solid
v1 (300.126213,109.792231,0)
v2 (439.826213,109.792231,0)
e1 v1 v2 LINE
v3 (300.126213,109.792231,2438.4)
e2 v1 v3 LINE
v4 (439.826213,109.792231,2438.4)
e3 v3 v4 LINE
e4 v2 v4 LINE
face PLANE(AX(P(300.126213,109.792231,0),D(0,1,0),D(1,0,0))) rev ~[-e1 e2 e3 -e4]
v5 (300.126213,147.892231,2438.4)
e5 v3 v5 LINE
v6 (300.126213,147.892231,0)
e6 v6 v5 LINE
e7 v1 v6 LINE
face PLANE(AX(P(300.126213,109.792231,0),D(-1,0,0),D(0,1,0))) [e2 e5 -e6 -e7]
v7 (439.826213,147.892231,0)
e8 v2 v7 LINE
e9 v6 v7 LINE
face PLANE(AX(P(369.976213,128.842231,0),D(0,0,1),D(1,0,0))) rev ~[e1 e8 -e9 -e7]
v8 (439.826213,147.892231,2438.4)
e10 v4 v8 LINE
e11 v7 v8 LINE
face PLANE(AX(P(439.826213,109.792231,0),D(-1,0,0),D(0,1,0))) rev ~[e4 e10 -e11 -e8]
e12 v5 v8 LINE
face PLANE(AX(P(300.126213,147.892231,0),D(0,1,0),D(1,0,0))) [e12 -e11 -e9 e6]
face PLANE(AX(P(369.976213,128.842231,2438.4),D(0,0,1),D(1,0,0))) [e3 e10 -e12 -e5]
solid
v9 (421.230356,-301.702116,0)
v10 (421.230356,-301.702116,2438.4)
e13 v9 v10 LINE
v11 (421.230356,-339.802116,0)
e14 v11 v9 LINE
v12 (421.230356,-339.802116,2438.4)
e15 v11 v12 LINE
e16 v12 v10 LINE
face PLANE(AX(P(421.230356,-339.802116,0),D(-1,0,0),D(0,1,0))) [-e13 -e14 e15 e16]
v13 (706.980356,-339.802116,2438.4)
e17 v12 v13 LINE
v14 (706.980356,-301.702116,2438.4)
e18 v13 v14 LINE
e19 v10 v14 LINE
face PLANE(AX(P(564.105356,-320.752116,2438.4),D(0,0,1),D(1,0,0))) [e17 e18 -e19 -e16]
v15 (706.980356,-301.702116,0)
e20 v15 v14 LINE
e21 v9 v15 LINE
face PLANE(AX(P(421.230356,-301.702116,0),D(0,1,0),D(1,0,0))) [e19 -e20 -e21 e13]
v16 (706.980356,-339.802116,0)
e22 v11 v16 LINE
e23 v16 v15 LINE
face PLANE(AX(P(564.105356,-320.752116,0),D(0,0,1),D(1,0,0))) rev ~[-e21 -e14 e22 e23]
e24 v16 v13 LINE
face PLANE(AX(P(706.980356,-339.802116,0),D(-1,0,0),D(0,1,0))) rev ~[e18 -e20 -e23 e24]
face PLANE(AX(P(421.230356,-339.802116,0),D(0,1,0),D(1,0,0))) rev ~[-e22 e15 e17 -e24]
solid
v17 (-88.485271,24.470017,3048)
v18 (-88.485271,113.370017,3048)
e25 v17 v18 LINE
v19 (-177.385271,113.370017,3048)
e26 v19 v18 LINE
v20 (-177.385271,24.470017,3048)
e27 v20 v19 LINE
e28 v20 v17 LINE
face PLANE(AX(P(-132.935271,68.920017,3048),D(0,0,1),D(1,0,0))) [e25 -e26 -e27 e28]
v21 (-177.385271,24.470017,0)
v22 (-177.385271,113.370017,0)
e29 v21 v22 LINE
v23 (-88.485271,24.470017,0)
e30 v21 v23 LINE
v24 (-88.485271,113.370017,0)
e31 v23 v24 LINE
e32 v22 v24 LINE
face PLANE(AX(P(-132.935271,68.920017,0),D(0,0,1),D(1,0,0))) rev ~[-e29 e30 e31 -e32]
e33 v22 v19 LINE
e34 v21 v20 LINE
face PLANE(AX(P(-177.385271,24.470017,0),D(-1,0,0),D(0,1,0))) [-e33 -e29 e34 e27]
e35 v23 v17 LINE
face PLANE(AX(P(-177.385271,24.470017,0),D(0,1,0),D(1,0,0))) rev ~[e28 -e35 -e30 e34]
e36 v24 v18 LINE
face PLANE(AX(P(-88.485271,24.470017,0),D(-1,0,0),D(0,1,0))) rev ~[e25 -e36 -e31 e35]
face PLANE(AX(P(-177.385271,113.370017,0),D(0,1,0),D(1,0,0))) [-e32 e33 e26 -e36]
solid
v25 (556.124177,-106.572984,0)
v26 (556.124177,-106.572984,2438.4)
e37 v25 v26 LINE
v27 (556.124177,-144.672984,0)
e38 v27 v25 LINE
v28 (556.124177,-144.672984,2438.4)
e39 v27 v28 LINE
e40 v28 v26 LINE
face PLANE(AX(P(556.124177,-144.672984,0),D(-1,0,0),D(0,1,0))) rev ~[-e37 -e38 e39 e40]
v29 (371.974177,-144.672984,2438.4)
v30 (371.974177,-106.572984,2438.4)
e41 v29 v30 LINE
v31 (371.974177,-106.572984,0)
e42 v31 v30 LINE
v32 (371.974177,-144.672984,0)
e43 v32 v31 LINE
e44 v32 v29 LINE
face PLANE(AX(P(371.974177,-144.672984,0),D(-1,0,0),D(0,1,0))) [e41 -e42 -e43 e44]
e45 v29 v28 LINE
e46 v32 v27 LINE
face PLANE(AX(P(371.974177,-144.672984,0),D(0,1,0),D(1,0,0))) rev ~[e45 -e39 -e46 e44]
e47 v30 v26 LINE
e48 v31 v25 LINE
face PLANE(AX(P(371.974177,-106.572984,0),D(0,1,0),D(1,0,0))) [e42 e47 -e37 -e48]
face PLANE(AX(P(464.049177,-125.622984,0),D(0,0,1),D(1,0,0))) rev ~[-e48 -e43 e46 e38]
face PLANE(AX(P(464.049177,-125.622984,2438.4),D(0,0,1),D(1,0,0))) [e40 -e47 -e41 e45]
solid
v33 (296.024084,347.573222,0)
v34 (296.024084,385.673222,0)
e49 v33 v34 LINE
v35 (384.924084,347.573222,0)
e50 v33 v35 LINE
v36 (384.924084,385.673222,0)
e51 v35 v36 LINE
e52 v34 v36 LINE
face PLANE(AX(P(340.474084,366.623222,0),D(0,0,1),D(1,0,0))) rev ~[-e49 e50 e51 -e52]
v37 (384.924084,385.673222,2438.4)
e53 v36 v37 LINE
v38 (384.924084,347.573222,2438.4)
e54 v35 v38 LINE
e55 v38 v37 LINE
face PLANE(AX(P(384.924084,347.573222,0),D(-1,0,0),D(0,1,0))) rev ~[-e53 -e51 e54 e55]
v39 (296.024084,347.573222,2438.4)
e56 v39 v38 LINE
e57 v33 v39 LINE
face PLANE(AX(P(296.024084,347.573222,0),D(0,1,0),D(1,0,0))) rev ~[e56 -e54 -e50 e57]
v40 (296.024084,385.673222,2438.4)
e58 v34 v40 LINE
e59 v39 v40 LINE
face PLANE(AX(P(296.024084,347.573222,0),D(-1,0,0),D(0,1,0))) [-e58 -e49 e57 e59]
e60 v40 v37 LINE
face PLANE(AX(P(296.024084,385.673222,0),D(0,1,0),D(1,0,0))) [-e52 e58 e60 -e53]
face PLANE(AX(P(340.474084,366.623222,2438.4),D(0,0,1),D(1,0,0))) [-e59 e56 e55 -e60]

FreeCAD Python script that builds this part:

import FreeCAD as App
import Part
import Sketcher
Q = App.Units.Quantity

doc = App.newDocument("Part")
body = doc.addObject("PartDesign::Body", "Body")

# Sketch on XY plane
sketch1 = body.newObject("Sketcher::SketchObject", "Sketch")
sketch1.AttachmentSupport = (doc.getObject("XY_Plane"), [""])
sketch1.MapMode = "FlatFace"
sketch1.addGeometry(Part.LineSegment(App.Vector(-177, 113, 0), App.Vector(-177, 24, 0)), False)
sketch1.addGeometry(Part.LineSegment(App.Vector(-177, 24, 0), App.Vector(-88, 24, 0)), False)
sketch1.addGeometry(Part.LineSegment(App.Vector(-88, 24, 0), App.Vector(-88, 113, 0)), False)
sketch1.addGeometry(Part.LineSegment(App.Vector(-88, 113, 0), App.Vector(-177, 113, 0)), False)
sketch1.addConstraint(Sketcher.Constraint("Coincident", 0, 2, 1, 1))
sketch1.addConstraint(Sketcher.Constraint("Coincident", 1, 2, 2, 1))
sketch1.addConstraint(Sketcher.Constraint("Coincident", 2, 2, 3, 1))
sketch1.addConstraint(Sketcher.Constraint("Coincident", 3, 2, 0, 1))
sketch1.addConstraint(Sketcher.Constraint("Vertical", 0))
sketch1.addConstraint(Sketcher.Constraint("Horizontal", 1))
sketch1.addConstraint(Sketcher.Constraint("Vertical", 2))
sketch1.addConstraint(Sketcher.Constraint("Horizontal", 3))
sketch1.addConstraint(Sketcher.Constraint("Equal", 3, 0))
sketch1.addConstraint(Sketcher.Constraint("DistanceX", 1, 1, 1, 2, Q("3.5 in")))
sketch1.addConstraint(Sketcher.Constraint("DistanceX", 0, 2, -1, 1, Q("177.385271 mm")))
sketch1.addConstraint(Sketcher.Constraint("DistanceY", -1, 1, 0, 2, Q("24.470017 mm")))
pad1 = body.newObject("PartDesign::Pad", "Pad")
pad1.Profile = sketch1
pad1.Length = Q("120 in")
body2 = doc.addObject("PartDesign::Body", "Body001")

# Sketch on XY plane
sketch2 = body2.newObject("Sketcher::SketchObject", "Sketch001")
sketch2.AttachmentSupport = (doc.getObject("XY_Plane001"), [""])
sketch2.MapMode = "FlatFace"
sketch2.addGeometry(Part.LineSegment(App.Vector(296, 386, 0), App.Vector(296, 348, 0)), False)
sketch2.addGeometry(Part.LineSegment(App.Vector(296, 348, 0), App.Vector(385, 348, 0)), False)
sketch2.addGeometry(Part.LineSegment(App.Vector(385, 348, 0), App.Vector(385, 386, 0)), False)
sketch2.addGeometry(Part.LineSegment(App.Vector(385, 386, 0), App.Vector(296, 386, 0)), False)
sketch2.addConstraint(Sketcher.Constraint("Coincident", 0, 2, 1, 1))
sketch2.addConstraint(Sketcher.Constraint("Coincident", 1, 2, 2, 1))
sketch2.addConstraint(Sketcher.Constraint("Coincident", 2, 2, 3, 1))
sketch2.addConstraint(Sketcher.Constraint("Coincident", 3, 2, 0, 1))
sketch2.addConstraint(Sketcher.Constraint("Vertical", 0))
sketch2.addConstraint(Sketcher.Constraint("Horizontal", 1))
sketch2.addConstraint(Sketcher.Constraint("Vertical", 2))
sketch2.addConstraint(Sketcher.Constraint("Horizontal", 3))
sketch2.addConstraint(Sketcher.Constraint("DistanceX", 1, 1, 1, 2, Q("3.5 in")))
sketch2.addConstraint(Sketcher.Constraint("DistanceY", 0, 2, 0, 1, Q("1.5 in")))
sketch2.addConstraint(Sketcher.Constraint("DistanceY", -1, 1, 0, 2, Q("347.573222 mm")))
sketch2.addConstraint(Sketcher.Constraint("DistanceX", -1, 1, 0, 2, Q("296.024084 mm")))
pad2 = body2.newObject("PartDesign::Pad", "Pad001")
pad2.Profile = sketch2
pad2.Length = Q("96 in")
body3 = doc.addObject("PartDesign::Body", "Body002")

# Sketch on XY plane
sketch3 = body3.newObject("Sketcher::SketchObject", "Sketch002")
sketch3.AttachmentSupport = (doc.getObject("XY_Plane002"), [""])
sketch3.MapMode = "FlatFace"
sketch3.addGeometry(Part.LineSegment(App.Vector(300, 148, 0), App.Vector(300, 110, 0)), False)
sketch3.addGeometry(Part.LineSegment(App.Vector(300, 110, 0), App.Vector(440, 110, 0)), False)
sketch3.addGeometry(Part.LineSegment(App.Vector(440, 110, 0), App.Vector(440, 148, 0)), False)
sketch3.addGeometry(Part.LineSegment(App.Vector(440, 148, 0), App.Vector(300, 148, 0)), False)
sketch3.addConstraint(Sketcher.Constraint("Coincident", 0, 2, 1, 1))
sketch3.addConstraint(Sketcher.Constraint("Coincident", 1, 2, 2, 1))
sketch3.addConstraint(Sketcher.Constraint("Coincident", 2, 2, 3, 1))
sketch3.addConstraint(Sketcher.Constraint("Coincident", 3, 2, 0, 1))
sketch3.addConstraint(Sketcher.Constraint("Vertical", 0))
sketch3.addConstraint(Sketcher.Constraint("Horizontal", 1))
sketch3.addConstraint(Sketcher.Constraint("Vertical", 2))
sketch3.addConstraint(Sketcher.Constraint("Horizontal", 3))
sketch3.addConstraint(Sketcher.Constraint("DistanceX", 1, 1, 1, 2, Q("5.5 in")))
sketch3.addConstraint(Sketcher.Constraint("DistanceY", 0, 2, 0, 1, Q("1.5 in")))
sketch3.addConstraint(Sketcher.Constraint("DistanceY", -1, 1, 0, 2, Q("109.792231 mm")))
sketch3.addConstraint(Sketcher.Constraint("DistanceX", -1, 1, 0, 2, Q("300.126213 mm")))
pad3 = body3.newObject("PartDesign::Pad", "Pad002")
pad3.Profile = sketch3
pad3.Length = Q("96 in")
body4 = doc.addObject("PartDesign::Body", "Body003")

# Sketch on XY plane
sketch4 = body4.newObject("Sketcher::SketchObject", "Sketch003")
sketch4.AttachmentSupport = (doc.getObject("XY_Plane003"), [""])
sketch4.MapMode = "FlatFace"
sketch4.addGeometry(Part.LineSegment(App.Vector(372, -107, 0), App.Vector(372, -145, 0)), False)
sketch4.addGeometry(Part.LineSegment(App.Vector(372, -145, 0), App.Vector(556, -145, 0)), False)
sketch4.addGeometry(Part.LineSegment(App.Vector(556, -145, 0), App.Vector(556, -107, 0)), False)
sketch4.addGeometry(Part.LineSegment(App.Vector(556, -107, 0), App.Vector(372, -107, 0)), False)
sketch4.addConstraint(Sketcher.Constraint("Coincident", 0, 2, 1, 1))
sketch4.addConstraint(Sketcher.Constraint("Coincident", 1, 2, 2, 1))
sketch4.addConstraint(Sketcher.Constraint("Coincident", 2, 2, 3, 1))
sketch4.addConstraint(Sketcher.Constraint("Coincident", 3, 2, 0, 1))
sketch4.addConstraint(Sketcher.Constraint("Vertical", 0))
sketch4.addConstraint(Sketcher.Constraint("Horizontal", 1))
sketch4.addConstraint(Sketcher.Constraint("Vertical", 2))
sketch4.addConstraint(Sketcher.Constraint("Horizontal", 3))
sketch4.addConstraint(Sketcher.Constraint("DistanceY", 0, 2, 0, 1, Q("1.5 in")))
sketch4.addConstraint(Sketcher.Constraint("DistanceX", 1, 1, 1, 2, Q("7.25 in")))
sketch4.addConstraint(Sketcher.Constraint("DistanceX", -1, 1, 0, 2, Q("371.974177 mm")))
sketch4.addConstraint(Sketcher.Constraint("DistanceY", 0, 2, -1, 1, Q("144.672984 mm")))
pad4 = body4.newObject("PartDesign::Pad", "Pad003")
pad4.Profile = sketch4
pad4.Length = Q("96 in")
body5 = doc.addObject("PartDesign::Body", "Body004")

# Sketch on XY plane
sketch5 = body5.newObject("Sketcher::SketchObject", "Sketch004")
sketch5.AttachmentSupport = (doc.getObject("XY_Plane004"), [""])
sketch5.MapMode = "FlatFace"
sketch5.addGeometry(Part.LineSegment(App.Vector(421, -302, 0), App.Vector(421, -340, 0)), False)
sketch5.addGeometry(Part.LineSegment(App.Vector(421, -340, 0), App.Vector(707, -340, 0)), False)
sketch5.addGeometry(Part.LineSegment(App.Vector(707, -340, 0), App.Vector(707, -302, 0)), False)
sketch5.addGeometry(Part.LineSegment(App.Vector(707, -302, 0), App.Vector(421, -302, 0)), False)
sketch5.addConstraint(Sketcher.Constraint("Coincident", 0, 2, 1, 1))
sketch5.addConstraint(Sketcher.Constraint("Coincident", 1, 2, 2, 1))
sketch5.addConstraint(Sketcher.Constraint("Coincident", 2, 2, 3, 1))
sketch5.addConstraint(Sketcher.Constraint("Coincident", 3, 2, 0, 1))
sketch5.addConstraint(Sketcher.Constraint("Vertical", 0))
sketch5.addConstraint(Sketcher.Constraint("Horizontal", 1))
sketch5.addConstraint(Sketcher.Constraint("Vertical", 2))
sketch5.addConstraint(Sketcher.Constraint("Horizontal", 3))
sketch5.addConstraint(Sketcher.Constraint("DistanceY", 0, 2, 0, 1, Q("1.5 in")))
sketch5.addConstraint(Sketcher.Constraint("DistanceX", 1, 1, 1, 2, Q("11.25 in")))
sketch5.addConstraint(Sketcher.Constraint("DistanceX", -1, 1, 0, 2, Q("421.230356 mm")))
sketch5.addConstraint(Sketcher.Constraint("DistanceY", 0, 2, -1, 1, Q("339.802116 mm")))
pad5 = body5.newObject("PartDesign::Pad", "Pad004")
pad5.Profile = sketch5
pad5.Length = Q("96 in")

doc.recompute()
